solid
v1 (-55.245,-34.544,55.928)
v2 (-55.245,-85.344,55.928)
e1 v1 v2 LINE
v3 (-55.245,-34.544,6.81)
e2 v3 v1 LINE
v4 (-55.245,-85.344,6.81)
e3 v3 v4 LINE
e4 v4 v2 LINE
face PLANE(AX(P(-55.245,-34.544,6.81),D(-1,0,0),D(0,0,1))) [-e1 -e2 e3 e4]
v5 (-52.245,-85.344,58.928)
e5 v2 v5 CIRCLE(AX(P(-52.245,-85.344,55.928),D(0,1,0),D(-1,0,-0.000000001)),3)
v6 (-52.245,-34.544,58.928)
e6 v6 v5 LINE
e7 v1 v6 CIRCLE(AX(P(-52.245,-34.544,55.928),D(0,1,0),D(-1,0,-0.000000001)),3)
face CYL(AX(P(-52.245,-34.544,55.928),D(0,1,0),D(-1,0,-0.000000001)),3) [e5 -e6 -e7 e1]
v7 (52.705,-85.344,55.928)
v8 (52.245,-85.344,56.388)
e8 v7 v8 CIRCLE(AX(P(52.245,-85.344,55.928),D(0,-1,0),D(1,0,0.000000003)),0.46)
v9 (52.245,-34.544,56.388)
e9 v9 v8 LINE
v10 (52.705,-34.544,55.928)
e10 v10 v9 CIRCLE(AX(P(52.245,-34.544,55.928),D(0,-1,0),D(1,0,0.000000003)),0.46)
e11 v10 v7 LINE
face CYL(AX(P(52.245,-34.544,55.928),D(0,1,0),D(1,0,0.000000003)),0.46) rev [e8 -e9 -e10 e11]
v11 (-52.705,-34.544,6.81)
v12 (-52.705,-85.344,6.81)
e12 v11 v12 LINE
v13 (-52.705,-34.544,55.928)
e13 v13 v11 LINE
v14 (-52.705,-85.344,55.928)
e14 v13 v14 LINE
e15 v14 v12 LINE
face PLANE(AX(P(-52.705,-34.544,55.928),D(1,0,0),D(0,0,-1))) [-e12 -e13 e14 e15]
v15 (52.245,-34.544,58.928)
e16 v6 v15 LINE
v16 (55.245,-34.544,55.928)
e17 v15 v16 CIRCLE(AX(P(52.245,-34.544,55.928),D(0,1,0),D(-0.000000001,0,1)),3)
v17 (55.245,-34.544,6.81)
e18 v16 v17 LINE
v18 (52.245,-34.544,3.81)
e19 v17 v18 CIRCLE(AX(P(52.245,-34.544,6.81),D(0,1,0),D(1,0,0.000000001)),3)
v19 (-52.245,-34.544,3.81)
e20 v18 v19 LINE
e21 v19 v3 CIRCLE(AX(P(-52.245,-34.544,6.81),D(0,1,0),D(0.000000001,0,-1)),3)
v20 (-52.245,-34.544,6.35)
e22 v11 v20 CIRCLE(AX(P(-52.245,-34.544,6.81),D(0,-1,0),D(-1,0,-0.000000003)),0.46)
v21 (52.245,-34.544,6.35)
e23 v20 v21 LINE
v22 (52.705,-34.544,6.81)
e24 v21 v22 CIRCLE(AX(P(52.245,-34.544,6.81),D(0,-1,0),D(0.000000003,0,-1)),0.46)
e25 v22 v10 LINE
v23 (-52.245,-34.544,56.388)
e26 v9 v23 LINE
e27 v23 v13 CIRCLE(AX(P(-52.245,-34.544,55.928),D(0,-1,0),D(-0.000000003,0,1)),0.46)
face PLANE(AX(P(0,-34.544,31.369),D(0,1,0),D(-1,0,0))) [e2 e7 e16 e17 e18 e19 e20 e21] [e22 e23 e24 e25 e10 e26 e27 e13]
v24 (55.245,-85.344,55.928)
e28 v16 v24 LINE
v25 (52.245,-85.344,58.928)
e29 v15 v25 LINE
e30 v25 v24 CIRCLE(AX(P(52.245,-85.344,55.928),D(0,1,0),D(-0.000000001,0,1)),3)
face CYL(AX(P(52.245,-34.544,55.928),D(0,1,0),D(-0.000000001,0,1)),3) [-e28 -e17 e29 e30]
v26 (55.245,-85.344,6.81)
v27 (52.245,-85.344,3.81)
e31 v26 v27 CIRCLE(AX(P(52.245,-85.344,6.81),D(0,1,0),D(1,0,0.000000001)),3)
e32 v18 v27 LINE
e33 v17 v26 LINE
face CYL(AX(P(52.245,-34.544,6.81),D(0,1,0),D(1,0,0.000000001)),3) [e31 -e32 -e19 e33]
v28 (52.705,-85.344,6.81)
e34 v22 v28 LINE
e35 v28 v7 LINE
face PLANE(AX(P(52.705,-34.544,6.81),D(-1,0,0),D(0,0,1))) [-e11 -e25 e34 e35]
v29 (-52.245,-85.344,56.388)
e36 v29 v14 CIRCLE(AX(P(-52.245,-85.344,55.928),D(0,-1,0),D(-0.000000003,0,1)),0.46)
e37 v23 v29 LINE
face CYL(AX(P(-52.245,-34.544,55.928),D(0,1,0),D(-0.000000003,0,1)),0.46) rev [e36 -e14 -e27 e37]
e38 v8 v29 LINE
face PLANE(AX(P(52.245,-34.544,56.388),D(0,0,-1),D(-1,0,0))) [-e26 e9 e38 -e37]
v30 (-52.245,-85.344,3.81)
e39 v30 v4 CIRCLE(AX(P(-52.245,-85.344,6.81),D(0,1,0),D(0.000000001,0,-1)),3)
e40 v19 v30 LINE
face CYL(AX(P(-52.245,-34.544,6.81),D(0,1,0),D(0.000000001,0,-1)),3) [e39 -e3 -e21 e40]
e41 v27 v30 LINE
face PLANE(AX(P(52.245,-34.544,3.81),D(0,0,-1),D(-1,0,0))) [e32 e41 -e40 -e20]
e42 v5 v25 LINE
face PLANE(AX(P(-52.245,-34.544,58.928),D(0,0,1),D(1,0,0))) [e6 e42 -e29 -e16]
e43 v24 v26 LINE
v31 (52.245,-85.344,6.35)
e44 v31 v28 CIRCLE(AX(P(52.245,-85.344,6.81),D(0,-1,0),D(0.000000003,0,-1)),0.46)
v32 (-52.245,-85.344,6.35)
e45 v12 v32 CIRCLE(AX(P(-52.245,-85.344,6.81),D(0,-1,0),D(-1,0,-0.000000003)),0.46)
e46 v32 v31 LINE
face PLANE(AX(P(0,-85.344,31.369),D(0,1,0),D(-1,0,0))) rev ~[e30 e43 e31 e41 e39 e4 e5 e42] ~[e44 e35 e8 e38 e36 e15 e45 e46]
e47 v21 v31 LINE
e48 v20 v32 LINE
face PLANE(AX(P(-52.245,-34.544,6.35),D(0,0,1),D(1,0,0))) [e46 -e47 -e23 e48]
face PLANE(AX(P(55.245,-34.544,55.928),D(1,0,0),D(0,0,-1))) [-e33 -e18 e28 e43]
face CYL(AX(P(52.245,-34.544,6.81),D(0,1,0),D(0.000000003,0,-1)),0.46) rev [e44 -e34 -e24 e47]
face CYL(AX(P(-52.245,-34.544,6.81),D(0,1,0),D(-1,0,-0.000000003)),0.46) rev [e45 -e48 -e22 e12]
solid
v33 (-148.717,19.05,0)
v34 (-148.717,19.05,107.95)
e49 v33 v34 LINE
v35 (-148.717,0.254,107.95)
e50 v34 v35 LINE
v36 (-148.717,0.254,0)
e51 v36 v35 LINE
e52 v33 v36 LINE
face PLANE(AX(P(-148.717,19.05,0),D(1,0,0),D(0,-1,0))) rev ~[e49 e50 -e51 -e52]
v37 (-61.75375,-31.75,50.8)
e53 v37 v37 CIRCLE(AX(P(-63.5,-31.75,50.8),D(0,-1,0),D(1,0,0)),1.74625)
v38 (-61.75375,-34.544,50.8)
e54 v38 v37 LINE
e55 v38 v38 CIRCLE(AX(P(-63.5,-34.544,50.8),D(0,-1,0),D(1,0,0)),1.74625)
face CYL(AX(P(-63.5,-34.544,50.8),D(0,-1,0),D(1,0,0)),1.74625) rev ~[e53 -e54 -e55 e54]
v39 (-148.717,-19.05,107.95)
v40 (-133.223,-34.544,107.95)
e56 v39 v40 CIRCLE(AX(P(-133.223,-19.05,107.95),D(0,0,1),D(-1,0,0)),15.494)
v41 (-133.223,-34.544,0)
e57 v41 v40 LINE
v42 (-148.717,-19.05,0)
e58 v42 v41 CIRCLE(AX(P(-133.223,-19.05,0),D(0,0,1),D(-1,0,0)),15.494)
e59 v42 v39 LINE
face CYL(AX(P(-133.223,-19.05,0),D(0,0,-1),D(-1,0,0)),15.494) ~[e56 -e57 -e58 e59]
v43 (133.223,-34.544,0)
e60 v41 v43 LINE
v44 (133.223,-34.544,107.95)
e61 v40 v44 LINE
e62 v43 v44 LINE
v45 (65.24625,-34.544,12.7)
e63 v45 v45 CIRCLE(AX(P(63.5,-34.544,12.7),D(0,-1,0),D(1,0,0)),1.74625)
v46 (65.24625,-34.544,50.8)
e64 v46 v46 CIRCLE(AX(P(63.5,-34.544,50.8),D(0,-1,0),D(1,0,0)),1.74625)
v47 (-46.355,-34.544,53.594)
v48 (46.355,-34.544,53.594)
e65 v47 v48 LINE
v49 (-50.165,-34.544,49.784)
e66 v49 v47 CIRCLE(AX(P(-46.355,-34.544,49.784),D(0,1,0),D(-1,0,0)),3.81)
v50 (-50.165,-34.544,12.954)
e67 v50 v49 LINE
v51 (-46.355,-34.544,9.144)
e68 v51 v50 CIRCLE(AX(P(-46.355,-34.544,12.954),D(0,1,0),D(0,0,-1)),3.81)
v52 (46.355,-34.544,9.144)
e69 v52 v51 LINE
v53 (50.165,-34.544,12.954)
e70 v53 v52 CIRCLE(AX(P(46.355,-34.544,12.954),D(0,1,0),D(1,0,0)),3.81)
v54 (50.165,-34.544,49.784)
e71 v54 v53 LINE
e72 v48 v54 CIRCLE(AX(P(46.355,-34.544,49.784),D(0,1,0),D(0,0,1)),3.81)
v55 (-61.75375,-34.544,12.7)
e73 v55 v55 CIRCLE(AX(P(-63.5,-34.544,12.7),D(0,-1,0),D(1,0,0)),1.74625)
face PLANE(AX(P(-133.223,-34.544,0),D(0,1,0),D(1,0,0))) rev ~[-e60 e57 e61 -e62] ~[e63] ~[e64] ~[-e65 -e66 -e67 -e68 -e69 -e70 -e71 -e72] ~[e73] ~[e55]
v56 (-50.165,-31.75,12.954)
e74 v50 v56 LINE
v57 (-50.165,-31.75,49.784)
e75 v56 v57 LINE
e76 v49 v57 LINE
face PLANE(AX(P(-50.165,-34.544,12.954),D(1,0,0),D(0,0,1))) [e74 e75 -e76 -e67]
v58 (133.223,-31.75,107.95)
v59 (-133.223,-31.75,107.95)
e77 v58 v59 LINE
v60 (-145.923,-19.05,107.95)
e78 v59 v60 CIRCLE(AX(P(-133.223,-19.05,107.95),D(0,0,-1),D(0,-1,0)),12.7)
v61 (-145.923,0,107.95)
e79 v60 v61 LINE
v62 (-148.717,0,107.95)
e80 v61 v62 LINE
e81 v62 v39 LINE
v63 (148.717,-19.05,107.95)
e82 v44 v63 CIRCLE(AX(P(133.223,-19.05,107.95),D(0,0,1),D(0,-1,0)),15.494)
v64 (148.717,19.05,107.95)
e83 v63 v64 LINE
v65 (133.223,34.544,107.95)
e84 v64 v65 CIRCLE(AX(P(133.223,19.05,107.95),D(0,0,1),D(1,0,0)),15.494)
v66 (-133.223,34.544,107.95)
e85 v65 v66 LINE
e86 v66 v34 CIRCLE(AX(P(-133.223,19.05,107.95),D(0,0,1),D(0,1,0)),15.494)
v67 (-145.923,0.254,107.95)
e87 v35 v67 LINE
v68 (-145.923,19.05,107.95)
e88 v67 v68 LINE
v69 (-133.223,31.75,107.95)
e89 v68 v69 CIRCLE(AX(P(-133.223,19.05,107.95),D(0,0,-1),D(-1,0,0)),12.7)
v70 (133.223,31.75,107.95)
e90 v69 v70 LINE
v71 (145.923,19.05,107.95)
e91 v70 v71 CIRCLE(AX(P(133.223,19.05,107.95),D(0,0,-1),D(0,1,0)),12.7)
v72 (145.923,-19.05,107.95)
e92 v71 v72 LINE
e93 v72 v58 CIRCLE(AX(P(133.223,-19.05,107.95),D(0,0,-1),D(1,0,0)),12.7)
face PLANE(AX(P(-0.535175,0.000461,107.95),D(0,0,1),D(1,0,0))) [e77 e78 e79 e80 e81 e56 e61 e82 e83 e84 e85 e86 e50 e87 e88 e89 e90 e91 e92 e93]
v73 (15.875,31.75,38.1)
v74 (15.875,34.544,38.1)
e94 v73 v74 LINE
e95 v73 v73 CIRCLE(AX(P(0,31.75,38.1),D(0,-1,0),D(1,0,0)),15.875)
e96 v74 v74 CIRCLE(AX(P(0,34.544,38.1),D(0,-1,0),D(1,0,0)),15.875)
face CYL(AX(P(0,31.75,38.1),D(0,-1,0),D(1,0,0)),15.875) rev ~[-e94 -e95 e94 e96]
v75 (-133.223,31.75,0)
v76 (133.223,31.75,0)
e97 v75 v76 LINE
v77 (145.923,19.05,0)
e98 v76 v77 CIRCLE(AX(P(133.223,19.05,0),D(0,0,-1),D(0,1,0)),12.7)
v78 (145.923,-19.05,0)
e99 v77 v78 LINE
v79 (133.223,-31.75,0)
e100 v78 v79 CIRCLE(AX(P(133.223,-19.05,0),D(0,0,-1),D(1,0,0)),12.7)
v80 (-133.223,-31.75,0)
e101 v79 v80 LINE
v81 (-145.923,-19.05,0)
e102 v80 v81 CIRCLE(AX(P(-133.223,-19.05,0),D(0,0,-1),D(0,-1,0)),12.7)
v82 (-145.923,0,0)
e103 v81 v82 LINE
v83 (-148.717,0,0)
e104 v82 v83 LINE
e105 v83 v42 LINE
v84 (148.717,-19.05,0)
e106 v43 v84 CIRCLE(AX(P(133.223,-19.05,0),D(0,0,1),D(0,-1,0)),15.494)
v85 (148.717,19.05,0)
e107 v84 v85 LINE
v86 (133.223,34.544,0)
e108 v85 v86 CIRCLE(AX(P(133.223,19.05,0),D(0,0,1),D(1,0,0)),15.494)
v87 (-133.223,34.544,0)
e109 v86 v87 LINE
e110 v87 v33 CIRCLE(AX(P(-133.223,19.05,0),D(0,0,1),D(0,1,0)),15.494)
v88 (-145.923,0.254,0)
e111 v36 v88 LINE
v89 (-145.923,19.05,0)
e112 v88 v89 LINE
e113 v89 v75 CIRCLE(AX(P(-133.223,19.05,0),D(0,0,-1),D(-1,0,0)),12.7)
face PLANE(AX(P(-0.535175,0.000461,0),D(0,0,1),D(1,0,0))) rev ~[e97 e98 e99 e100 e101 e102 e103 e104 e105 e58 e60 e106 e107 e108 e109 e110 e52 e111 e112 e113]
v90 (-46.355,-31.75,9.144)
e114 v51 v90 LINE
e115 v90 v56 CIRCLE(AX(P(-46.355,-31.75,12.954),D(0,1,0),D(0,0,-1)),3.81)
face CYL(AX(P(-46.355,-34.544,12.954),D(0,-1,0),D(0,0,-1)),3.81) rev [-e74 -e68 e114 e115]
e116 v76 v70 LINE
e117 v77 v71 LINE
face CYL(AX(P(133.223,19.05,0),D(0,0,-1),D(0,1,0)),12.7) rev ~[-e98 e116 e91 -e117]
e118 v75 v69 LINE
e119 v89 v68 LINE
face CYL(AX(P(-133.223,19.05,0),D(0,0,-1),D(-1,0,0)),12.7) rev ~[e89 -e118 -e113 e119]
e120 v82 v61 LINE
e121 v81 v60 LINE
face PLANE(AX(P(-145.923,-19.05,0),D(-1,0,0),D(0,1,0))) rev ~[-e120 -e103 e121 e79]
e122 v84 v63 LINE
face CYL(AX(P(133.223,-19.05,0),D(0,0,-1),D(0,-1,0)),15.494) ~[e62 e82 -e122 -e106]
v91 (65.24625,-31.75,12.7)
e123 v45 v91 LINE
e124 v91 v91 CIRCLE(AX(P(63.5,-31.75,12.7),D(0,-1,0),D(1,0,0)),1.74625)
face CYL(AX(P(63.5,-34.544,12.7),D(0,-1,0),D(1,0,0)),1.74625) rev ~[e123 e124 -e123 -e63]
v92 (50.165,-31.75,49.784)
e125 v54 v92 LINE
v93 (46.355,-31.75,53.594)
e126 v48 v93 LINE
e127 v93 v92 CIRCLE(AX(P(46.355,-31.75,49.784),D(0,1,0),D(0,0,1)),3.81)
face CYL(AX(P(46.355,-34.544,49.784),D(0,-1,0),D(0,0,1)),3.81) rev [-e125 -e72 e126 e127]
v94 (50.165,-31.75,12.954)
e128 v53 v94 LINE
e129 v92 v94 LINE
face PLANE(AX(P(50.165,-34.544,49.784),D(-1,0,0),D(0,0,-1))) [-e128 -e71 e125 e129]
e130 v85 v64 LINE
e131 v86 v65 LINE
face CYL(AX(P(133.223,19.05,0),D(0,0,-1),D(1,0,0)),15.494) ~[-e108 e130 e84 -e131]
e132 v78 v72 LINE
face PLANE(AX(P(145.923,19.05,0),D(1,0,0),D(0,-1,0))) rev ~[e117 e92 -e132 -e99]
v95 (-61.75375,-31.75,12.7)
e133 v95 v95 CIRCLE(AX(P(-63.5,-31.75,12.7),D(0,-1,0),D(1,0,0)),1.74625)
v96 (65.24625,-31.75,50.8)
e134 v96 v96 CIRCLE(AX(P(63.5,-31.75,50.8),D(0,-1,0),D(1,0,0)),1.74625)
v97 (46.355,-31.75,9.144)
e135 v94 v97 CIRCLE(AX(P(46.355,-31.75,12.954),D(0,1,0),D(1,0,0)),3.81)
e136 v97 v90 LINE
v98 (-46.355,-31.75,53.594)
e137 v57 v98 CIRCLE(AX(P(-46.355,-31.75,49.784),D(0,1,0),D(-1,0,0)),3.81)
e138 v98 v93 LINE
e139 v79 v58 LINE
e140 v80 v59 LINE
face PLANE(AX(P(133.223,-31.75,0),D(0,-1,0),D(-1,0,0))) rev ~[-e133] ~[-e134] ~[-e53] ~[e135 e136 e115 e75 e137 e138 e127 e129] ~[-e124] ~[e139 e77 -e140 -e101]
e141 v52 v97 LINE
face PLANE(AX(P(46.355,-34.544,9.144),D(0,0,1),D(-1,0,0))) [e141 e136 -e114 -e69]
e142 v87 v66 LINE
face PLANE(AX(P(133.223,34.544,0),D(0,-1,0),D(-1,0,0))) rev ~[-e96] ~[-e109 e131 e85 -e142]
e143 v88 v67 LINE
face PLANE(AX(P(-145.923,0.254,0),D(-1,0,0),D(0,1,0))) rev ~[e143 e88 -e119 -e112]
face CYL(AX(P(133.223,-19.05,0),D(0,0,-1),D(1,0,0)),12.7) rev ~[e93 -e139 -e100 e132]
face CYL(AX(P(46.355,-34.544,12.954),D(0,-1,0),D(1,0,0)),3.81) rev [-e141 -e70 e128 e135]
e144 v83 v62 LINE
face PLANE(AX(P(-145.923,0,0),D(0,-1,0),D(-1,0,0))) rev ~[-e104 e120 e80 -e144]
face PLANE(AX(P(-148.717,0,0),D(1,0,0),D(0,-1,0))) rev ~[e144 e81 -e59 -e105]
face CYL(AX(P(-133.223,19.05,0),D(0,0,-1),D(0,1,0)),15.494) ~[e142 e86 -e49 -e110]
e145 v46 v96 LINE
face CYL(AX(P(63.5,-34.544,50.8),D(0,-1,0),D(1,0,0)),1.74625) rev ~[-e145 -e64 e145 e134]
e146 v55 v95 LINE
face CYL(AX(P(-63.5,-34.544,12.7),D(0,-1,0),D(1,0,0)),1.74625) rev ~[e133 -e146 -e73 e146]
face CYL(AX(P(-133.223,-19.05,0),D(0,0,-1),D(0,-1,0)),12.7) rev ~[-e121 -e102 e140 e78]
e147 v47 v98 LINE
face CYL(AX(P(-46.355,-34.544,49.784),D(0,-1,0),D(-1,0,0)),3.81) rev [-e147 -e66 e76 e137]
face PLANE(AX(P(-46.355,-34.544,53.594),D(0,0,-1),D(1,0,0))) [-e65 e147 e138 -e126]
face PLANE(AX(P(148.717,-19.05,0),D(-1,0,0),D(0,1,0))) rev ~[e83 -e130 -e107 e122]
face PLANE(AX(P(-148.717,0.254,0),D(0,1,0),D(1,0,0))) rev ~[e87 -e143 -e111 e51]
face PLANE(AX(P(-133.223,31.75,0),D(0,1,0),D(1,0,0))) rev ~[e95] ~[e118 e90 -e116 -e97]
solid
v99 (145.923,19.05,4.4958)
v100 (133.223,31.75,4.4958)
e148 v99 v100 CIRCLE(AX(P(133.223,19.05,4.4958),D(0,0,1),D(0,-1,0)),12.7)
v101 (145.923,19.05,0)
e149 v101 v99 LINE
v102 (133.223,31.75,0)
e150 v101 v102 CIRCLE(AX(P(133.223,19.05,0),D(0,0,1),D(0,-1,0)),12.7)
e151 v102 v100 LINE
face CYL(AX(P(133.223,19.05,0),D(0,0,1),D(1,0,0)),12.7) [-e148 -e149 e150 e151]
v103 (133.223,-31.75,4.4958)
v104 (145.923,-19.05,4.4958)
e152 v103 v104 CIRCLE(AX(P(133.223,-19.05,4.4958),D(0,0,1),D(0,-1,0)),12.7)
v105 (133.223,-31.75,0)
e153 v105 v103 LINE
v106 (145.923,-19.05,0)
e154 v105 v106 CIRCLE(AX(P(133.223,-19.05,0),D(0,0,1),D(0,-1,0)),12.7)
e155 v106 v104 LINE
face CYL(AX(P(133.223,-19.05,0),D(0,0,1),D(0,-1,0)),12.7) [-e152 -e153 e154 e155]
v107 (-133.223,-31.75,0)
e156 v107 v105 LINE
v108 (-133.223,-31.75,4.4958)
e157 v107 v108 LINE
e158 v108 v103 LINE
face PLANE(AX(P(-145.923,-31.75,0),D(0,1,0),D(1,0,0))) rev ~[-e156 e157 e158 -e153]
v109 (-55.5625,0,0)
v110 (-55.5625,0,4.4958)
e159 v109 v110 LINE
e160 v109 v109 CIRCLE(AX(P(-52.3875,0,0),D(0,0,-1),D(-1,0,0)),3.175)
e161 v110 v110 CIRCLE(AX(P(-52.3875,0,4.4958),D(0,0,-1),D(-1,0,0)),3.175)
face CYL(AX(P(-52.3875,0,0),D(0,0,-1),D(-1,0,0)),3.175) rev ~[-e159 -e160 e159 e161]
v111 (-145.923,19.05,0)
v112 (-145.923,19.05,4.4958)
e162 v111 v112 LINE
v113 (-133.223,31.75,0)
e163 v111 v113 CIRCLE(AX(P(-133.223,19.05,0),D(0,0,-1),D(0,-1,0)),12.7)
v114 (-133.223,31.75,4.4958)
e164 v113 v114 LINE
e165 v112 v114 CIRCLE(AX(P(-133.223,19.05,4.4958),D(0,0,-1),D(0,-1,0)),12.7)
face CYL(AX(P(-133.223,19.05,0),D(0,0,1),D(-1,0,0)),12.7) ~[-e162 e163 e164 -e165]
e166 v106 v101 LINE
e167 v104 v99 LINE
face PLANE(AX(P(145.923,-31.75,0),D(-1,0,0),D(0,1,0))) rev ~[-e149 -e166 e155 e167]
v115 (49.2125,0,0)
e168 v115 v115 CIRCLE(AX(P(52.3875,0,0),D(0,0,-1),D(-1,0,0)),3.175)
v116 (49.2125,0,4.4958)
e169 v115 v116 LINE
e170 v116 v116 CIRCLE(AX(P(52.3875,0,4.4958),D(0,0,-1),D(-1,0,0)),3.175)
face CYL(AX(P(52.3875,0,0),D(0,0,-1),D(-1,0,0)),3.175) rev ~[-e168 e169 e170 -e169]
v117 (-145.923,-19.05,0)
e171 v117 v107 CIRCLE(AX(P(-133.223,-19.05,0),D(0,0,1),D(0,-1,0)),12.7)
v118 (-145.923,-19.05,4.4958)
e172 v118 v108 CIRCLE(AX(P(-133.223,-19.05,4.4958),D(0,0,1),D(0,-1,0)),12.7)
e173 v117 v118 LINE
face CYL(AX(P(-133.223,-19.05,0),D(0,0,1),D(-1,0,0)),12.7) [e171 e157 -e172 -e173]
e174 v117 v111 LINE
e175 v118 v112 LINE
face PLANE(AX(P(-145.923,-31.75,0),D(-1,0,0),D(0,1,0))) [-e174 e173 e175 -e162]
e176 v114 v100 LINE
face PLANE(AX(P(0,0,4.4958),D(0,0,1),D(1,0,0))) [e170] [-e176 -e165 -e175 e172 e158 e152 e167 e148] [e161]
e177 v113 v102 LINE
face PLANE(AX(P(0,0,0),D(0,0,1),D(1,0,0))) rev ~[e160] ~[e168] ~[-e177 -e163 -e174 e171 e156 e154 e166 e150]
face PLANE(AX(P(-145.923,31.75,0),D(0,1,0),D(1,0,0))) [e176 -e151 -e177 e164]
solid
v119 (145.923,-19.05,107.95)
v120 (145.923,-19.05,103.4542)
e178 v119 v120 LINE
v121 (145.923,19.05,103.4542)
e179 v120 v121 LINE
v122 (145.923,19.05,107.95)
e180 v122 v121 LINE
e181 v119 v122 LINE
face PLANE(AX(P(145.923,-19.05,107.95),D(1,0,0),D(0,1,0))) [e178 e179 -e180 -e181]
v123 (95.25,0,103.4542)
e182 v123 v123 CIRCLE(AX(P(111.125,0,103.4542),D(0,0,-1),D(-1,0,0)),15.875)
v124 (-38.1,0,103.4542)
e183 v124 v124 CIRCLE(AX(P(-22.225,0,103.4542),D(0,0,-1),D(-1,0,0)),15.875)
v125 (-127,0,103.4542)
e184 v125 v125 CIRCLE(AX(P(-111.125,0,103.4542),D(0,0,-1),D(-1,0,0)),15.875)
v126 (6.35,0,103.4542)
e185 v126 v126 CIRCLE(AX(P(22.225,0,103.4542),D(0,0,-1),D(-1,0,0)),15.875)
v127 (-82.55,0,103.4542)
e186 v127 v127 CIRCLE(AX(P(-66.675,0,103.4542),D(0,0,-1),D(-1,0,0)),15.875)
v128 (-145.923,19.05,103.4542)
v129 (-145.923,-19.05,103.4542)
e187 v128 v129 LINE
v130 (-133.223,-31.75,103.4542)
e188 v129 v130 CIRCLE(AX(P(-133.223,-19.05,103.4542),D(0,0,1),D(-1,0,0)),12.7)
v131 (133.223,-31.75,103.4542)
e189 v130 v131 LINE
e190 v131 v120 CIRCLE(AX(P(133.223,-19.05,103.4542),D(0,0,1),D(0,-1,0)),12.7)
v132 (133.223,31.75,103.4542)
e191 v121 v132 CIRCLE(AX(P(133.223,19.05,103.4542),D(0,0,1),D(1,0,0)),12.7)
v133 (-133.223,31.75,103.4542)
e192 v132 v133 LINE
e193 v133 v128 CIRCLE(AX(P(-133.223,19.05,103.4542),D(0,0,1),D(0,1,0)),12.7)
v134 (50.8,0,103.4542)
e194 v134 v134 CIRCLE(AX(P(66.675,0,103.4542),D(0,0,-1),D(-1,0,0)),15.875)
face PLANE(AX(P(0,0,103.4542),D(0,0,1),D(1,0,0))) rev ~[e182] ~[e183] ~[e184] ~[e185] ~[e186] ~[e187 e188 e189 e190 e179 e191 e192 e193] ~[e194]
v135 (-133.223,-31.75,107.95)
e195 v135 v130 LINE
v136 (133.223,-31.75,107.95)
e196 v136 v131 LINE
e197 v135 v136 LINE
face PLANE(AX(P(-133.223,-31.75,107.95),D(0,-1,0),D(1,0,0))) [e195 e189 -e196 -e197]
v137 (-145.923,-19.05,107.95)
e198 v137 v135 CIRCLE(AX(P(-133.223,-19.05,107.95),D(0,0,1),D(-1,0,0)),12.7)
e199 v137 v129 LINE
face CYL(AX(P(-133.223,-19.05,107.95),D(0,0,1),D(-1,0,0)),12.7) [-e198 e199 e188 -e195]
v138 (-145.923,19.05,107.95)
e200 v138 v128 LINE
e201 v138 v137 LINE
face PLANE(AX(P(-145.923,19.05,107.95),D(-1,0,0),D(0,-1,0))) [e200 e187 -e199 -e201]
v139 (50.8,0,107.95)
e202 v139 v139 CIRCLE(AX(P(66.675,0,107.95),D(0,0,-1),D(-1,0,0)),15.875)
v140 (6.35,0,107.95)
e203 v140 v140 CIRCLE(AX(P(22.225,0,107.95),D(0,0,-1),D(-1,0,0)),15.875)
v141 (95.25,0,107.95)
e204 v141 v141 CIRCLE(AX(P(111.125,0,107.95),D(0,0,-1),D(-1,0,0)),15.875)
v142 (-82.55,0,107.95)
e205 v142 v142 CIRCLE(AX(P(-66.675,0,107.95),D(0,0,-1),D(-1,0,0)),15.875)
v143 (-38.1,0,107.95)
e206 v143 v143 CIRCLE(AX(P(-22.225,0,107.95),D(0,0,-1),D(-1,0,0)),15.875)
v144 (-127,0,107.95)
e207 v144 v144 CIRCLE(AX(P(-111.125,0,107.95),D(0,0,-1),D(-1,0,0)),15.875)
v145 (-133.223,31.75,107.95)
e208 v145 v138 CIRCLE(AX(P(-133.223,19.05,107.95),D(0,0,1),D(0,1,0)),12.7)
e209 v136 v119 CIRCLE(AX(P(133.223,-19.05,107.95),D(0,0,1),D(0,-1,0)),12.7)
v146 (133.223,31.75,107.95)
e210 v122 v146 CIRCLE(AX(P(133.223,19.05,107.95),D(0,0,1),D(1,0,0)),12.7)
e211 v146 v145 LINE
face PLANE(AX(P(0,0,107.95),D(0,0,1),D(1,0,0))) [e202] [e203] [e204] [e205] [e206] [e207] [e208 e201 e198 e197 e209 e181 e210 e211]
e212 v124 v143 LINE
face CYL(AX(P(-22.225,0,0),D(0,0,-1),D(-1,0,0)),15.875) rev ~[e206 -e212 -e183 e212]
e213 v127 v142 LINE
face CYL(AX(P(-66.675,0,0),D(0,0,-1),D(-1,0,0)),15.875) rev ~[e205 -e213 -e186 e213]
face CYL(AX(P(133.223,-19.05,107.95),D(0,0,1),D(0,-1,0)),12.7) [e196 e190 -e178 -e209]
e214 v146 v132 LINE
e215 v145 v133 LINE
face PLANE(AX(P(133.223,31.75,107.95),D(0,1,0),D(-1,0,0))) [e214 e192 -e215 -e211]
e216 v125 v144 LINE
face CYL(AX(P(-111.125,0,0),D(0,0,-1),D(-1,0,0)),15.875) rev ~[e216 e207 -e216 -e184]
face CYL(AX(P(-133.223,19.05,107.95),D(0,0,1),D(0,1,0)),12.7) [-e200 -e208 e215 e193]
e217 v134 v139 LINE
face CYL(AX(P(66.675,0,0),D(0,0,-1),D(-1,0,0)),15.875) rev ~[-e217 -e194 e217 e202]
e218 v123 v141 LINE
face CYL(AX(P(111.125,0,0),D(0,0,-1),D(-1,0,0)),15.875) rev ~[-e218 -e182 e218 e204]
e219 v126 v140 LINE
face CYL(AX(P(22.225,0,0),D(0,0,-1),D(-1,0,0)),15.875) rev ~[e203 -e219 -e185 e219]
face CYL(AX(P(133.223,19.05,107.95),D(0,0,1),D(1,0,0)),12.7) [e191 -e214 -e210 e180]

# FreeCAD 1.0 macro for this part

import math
import FreeCAD as App
import Part
import Sketcher

V = App.Vector
Q = App.Units.Quantity


def edges_at(feature, points):
    """Names of the edges that pass closest to the given points."""
    edges = feature.Shape.Edges
    near = lambda p: min(range(len(edges)), key=lambda i: edges[i].distToShape(Part.Vertex(*p))[0])
    return sorted({f"Edge{near(p) + 1}" for p in points})


def add_polygon(sketch, points):
    """Adds a closed chain of lines whose ends are joined by coincident constraints."""
    first, n = sketch.GeometryCount, len(points)
    for a, b in zip(points, points[1:] + points[:1]):
        sketch.addGeometry(Part.LineSegment(App.Vector(*a, 0), App.Vector(*b, 0)), False)
    for i in range(n):
        sketch.addConstraint(Sketcher.Constraint("Coincident", first + i, 2, first + (i + 1) % n, 1))

doc = App.newDocument("Part")
params = doc.addObject("Spreadsheet::Sheet", "Params")
for row, (alias, value) in enumerate([
    ("sketch1_height", "2.5 in"),
    ("sketch1_width", "11.49 in"),
    ("pad1_length", "0.177 in"),
    ("fillet_radius", "0.5 in"),
    ("sketch2_diameter", "0.25 in"),
    ("pocket1_length", "0.177 in"),
    ("sketch3_radius", "0.5 in"),
    ("sketch3_radius2", "0.61 in"),
    ("sketch3_height", "1.5 in"),
    ("sketch3_width", "10.49 in"),
    ("sketch3_height2", "0.74 in"),
    ("pad2_length", "4.25 in"),
    ("sketch4_radius", "0.15 in"),
    ("sketch4_width", "3.65 in"),
    ("sketch4_height", "1.45 in"),
    ("pocket2_length", "0.11 in"),
    ("sketch5_diameter", "1.25 in"),
    ("pocket4_length", "0.11 in"),
    ("sketch7_radius", "0.5 in"),
    ("sketch7_height", "1.5 in"),
    ("sketch7_width", "10.49 in"),
    ("pad3_length", "0.177 in"),
    ("sketch8_diameter", "1.25 in"),
    ("pad4_length", "2 in"),
], start=1):
    params.set(f"A{row}", alias)
    params.set(f"B{row}", "=" + value)
    params.setAlias(f"B{row}", alias)

body = doc.addObject("PartDesign::Body", "Body")

sketch1 = body.newObject("Sketcher::SketchObject", "Sketch")
sketch1.AttachmentSupport = (doc.getObject("XY_Plane"), [""])
sketch1.MapMode = "FlatFace"
add_polygon(sketch1, [(-145.923, 31.75), (-145.923, -31.75), (145.923, -31.75), (145.923, 31.75)])
sketch1.addConstraint(Sketcher.Constraint("Vertical", 0))
sketch1.addConstraint(Sketcher.Constraint("Horizontal", 1))
sketch1.addConstraint(Sketcher.Constraint("Vertical", 2))
sketch1.addConstraint(Sketcher.Constraint("Horizontal", 3))
sketch1.addConstraint(Sketcher.Constraint("Symmetric", 0, 2, 2, 2, -1, 1))
sketch1.addConstraint(Sketcher.Constraint("DistanceY", 0, 2, 0, 1, Q("2.5 in")))
sketch1.addConstraint(Sketcher.Constraint("DistanceX", 1, 1, 1, 2, Q("11.49 in")))
sketch1.setExpression("Constraints[9]", "Params.sketch1_height")
sketch1.setExpression("Constraints[10]", "Params.sketch1_width")
pad1 = body.newObject("PartDesign::Pad", "Pad")
pad1.Profile = sketch1
pad1.setExpression("Length", "Params.pad1_length")
doc.recompute()

fillet = body.newObject("PartDesign::Fillet", "Fillet")
fillet.Base = (pad1, edges_at(pad1, [
    (145.923, -31.75, 2.248),
    (-145.923, -31.75, 2.248),
    (-145.923, 31.75, 2.248),
    (145.923, 31.75, 2.248),
]))
fillet.setExpression("Radius", "Params.fillet_radius")

sketch2 = body.newObject("Sketcher::SketchObject", "Sketch001")
sketch2.AttachmentSupport = (doc.getObject("XY_Plane"), [""])
sketch2.MapMode = "FlatFace"
sketch2.addGeometry(Part.Circle(V(52.3875, 0, 0), V(0, 0, 1), 3.175), False)
sketch2.addGeometry(Part.Circle(V(-52.3875, 0, 0), V(0, 0, 1), 3.175), False)
sketch2.addConstraint(Sketcher.Constraint("Equal", 0, 1))
sketch2.addConstraint(Sketcher.Constraint("Symmetric", 0, 3, 1, 3, -1, 1))
sketch2.addConstraint(Sketcher.Constraint("PointOnObject", 0, 3, -1))
sketch2.addConstraint(Sketcher.Constraint("Diameter", 0, Q("0.25 in")))
sketch2.addConstraint(Sketcher.Constraint("DistanceX", -1, 1, 0, 3, Q("2.0625 in")))
sketch2.setExpression("Constraints[3]", "Params.sketch2_diameter")
pocket1 = body.newObject("PartDesign::Pocket", "Pocket")
pocket1.Profile = sketch2
pocket1.setExpression("Length", "Params.pocket1_length")
pocket1.Reversed = True
body2 = doc.addObject("PartDesign::Body", "Body001")

sketch3 = body2.newObject("Sketcher::SketchObject", "Sketch002")
sketch3.AttachmentSupport = (doc.getObject("XY_Plane001"), [""])
sketch3.MapMode = "FlatFace"
sketch3.addGeometry(Part.LineSegment(V(133.223, 34.544, 0), V(-133.223, 34.544, 0)), False)
sketch3.addGeometry(Part.ArcOfCircle(Part.Circle(V(-133.223, 19.05, 0), V(0, 0, 1), 15.494), math.radians(90), math.radians(180)), False)
sketch3.addGeometry(Part.LineSegment(V(-148.717, 19.05, 0), V(-148.717, 0.254, 0)), False)
sketch3.addGeometry(Part.LineSegment(V(-148.717, 0.254, 0), V(-145.923, 0.254, 0)), False)
sketch3.addGeometry(Part.LineSegment(V(-145.923, 0.254, 0), V(-145.923, 19.05, 0)), False)
sketch3.addGeometry(Part.ArcOfCircle(Part.Circle(V(-133.223, 19.05, 0), V(0, 0, 1), 12.7), math.radians(90), math.radians(180)), False)
sketch3.addGeometry(Part.LineSegment(V(-133.223, 31.75, 0), V(133.223, 31.75, 0)), False)
sketch3.addGeometry(Part.ArcOfCircle(Part.Circle(V(133.223, 19.05, 0), V(0, 0, 1), 12.7), math.radians(0), math.radians(90)), False)
sketch3.addGeometry(Part.LineSegment(V(145.923, 19.05, 0), V(145.923, -19.05, 0)), False)
sketch3.addGeometry(Part.ArcOfCircle(Part.Circle(V(133.223, -19.05, 0), V(0, 0, 1), 12.7), math.radians(-90), math.radians(0)), False)
sketch3.addGeometry(Part.LineSegment(V(133.223, -31.75, 0), V(-133.223, -31.75, 0)), False)
sketch3.addGeometry(Part.ArcOfCircle(Part.Circle(V(-133.223, -19.05, 0), V(0, 0, 1), 12.7), math.radians(180), math.radians(270)), False)
sketch3.addGeometry(Part.LineSegment(V(-145.923, -19.05, 0), V(-145.923, 0, 0)), False)
sketch3.addGeometry(Part.LineSegment(V(-145.923, 0, 0), V(-148.717, 0, 0)), False)
sketch3.addGeometry(Part.LineSegment(V(-148.717, 0, 0), V(-148.717, -19.05, 0)), False)
sketch3.addGeometry(Part.ArcOfCircle(Part.Circle(V(-133.223, -19.05, 0), V(0, 0, 1), 15.494), math.radians(180), math.radians(270)), False)
sketch3.addGeometry(Part.LineSegment(V(-133.223, -34.544, 0), V(133.223, -34.544, 0)), False)
sketch3.addGeometry(Part.ArcOfCircle(Part.Circle(V(133.223, -19.05, 0), V(0, 0, 1), 15.494), math.radians(-90), math.radians(0)), False)
sketch3.addGeometry(Part.LineSegment(V(148.717, -19.05, 0), V(148.717, 19.05, 0)), False)
sketch3.addGeometry(Part.ArcOfCircle(Part.Circle(V(133.223, 19.05, 0), V(0, 0, 1), 15.494), math.radians(0), math.radians(90)), False)
sketch3.addConstraint(Sketcher.Constraint("Tangent", 0, 2, 1, 1))
sketch3.addConstraint(Sketcher.Constraint("Tangent", 1, 2, 2, 1))
sketch3.addConstraint(Sketcher.Constraint("Coincident", 2, 2, 3, 1))
sketch3.addConstraint(Sketcher.Constraint("Coincident", 3, 2, 4, 1))
sketch3.addConstraint(Sketcher.Constraint("Tangent", 4, 2, 5, 2))
sketch3.addConstraint(Sketcher.Constraint("Tangent", 5, 1, 6, 1))
sketch3.addConstraint(Sketcher.Constraint("Tangent", 6, 2, 7, 2))
sketch3.addConstraint(Sketcher.Constraint("Tangent", 7, 1, 8, 1))
sketch3.addConstraint(Sketcher.Constraint("Tangent", 8, 2, 9, 2))
sketch3.addConstraint(Sketcher.Constraint("Tangent", 9, 1, 10, 1))
sketch3.addConstraint(Sketcher.Constraint("Tangent", 10, 2, 11, 2))
sketch3.addConstraint(Sketcher.Constraint("Tangent", 11, 1, 12, 1))
sketch3.addConstraint(Sketcher.Constraint("Coincident", 12, 2, 13, 1))
sketch3.addConstraint(Sketcher.Constraint("Coincident", 13, 2, 14, 1))
sketch3.addConstraint(Sketcher.Constraint("Tangent", 14, 2, 15, 1))
sketch3.addConstraint(Sketcher.Constraint("Tangent", 15, 2, 16, 1))
sketch3.addConstraint(Sketcher.Constraint("Tangent", 16, 2, 17, 1))
sketch3.addConstraint(Sketcher.Constraint("Tangent", 17, 2, 18, 1))
sketch3.addConstraint(Sketcher.Constraint("Tangent", 18, 2, 19, 1))
sketch3.addConstraint(Sketcher.Constraint("Tangent", 19, 2, 0, 1))
sketch3.addConstraint(Sketcher.Constraint("Horizontal", 0))
sketch3.addConstraint(Sketcher.Constraint("Vertical", 2))
sketch3.addConstraint(Sketcher.Constraint("Horizontal", 3))
sketch3.addConstraint(Sketcher.Constraint("Vertical", 4))
sketch3.addConstraint(Sketcher.Constraint("Horizontal", 6))
sketch3.addConstraint(Sketcher.Constraint("Vertical", 8))
sketch3.addConstraint(Sketcher.Constraint("Horizontal", 10))
sketch3.addConstraint(Sketcher.Constraint("Vertical", 12))
sketch3.addConstraint(Sketcher.Constraint("Horizontal", 13))
sketch3.addConstraint(Sketcher.Constraint("Vertical", 14))
sketch3.addConstraint(Sketcher.Constraint("Horizontal", 16))
sketch3.addConstraint(Sketcher.Constraint("Vertical", 18))
sketch3.addConstraint(Sketcher.Constraint("Coincident", 5, 3, 1, 3))
sketch3.addConstraint(Sketcher.Constraint("Coincident", 15, 3, 11, 3))
sketch3.addConstraint(Sketcher.Constraint("Coincident", 17, 3, 9, 3))
sketch3.addConstraint(Sketcher.Constraint("Coincident", 19, 3, 7, 3))
sketch3.addConstraint(Sketcher.Constraint("Equal", 5, 7))
sketch3.addConstraint(Sketcher.Constraint("Equal", 7, 9))
sketch3.addConstraint(Sketcher.Constraint("Equal", 9, 11))
sketch3.addConstraint(Sketcher.Constraint("Symmetric", 1, 3, 9, 3, -1, 1))
sketch3.addConstraint(Sketcher.Constraint("PointOnObject", 12, 2, -1))
sketch3.addConstraint(Sketcher.Constraint("Vertical", 5, 3, 11, 3))
sketch3.addConstraint(Sketcher.Constraint("Radius", 5, Q("0.5 in")))
sketch3.addConstraint(Sketcher.Constraint("Radius", 1, Q("0.61 in")))
sketch3.addConstraint(Sketcher.Constraint("DistanceY", 8, 2, 8, 1, Q("1.5 in")))
sketch3.addConstraint(Sketcher.Constraint("DistanceX", 0, 2, 0, 1, Q("10.49 in")))
sketch3.addConstraint(Sketcher.Constraint("DistanceY", 2, 2, 2, 1, Q("0.74 in")))
sketch3.setExpression("Constraints[42]", "Params.sketch3_radius")
sketch3.setExpression("Constraints[43]", "Params.sketch3_radius2")
sketch3.setExpression("Constraints[44]", "Params.sketch3_height")
sketch3.setExpression("Constraints[45]", "Params.sketch3_width")
sketch3.setExpression("Constraints[46]", "Params.sketch3_height2")
pad2 = body2.newObject("PartDesign::Pad", "Pad001")
pad2.Profile = sketch3
pad2.setExpression("Length", "Params.pad2_length")

sketch4 = body2.newObject("Sketcher::SketchObject", "Sketch003")
sketch4.AttachmentSupport = (doc.getObject("XZ_Plane001"), [""])
sketch4.MapMode = "FlatFace"
sketch4.AttachmentOffset = App.Placement(V(0, 0, 1.36 * 25.4), App.Rotation())
sketch4.addGeometry(Part.LineSegment(V(46.355, 53.594, 0), V(-46.355, 53.594, 0)), False)
sketch4.addGeometry(Part.ArcOfCircle(Part.Circle(V(-46.355, 49.784, 0), V(0, 0, 1), 3.81), math.radians(90), math.radians(180)), False)
sketch4.addGeometry(Part.LineSegment(V(-50.165, 49.784, 0), V(-50.165, 12.954, 0)), False)
sketch4.addGeometry(Part.ArcOfCircle(Part.Circle(V(-46.355, 12.954, 0), V(0, 0, 1), 3.81), math.radians(-180), math.radians(-90)), False)
sketch4.addGeometry(Part.LineSegment(V(-46.355, 9.144, 0), V(46.355, 9.144, 0)), False)
sketch4.addGeometry(Part.ArcOfCircle(Part.Circle(V(46.355, 12.954, 0), V(0, 0, 1), 3.81), math.radians(-90), math.radians(0)), False)
sketch4.addGeometry(Part.LineSegment(V(50.165, 12.954, 0), V(50.165, 49.784, 0)), False)
sketch4.addGeometry(Part.ArcOfCircle(Part.Circle(V(46.355, 49.784, 0), V(0, 0, 1), 3.81), math.radians(0), math.radians(90)), False)
sketch4.addConstraint(Sketcher.Constraint("Tangent", 0, 2, 1, 1))
sketch4.addConstraint(Sketcher.Constraint("Tangent", 1, 2, 2, 1))
sketch4.addConstraint(Sketcher.Constraint("Tangent", 2, 2, 3, 1))
sketch4.addConstraint(Sketcher.Constraint("Tangent", 3, 2, 4, 1))
sketch4.addConstraint(Sketcher.Constraint("Tangent", 4, 2, 5, 1))
sketch4.addConstraint(Sketcher.Constraint("Tangent", 5, 2, 6, 1))
sketch4.addConstraint(Sketcher.Constraint("Tangent", 6, 2, 7, 1))
sketch4.addConstraint(Sketcher.Constraint("Tangent", 7, 2, 0, 1))
sketch4.addConstraint(Sketcher.Constraint("Horizontal", 0))
sketch4.addConstraint(Sketcher.Constraint("Vertical", 2))
sketch4.addConstraint(Sketcher.Constraint("Horizontal", 4))
sketch4.addConstraint(Sketcher.Constraint("Vertical", 6))
sketch4.addConstraint(Sketcher.Constraint("Equal", 1, 3))
sketch4.addConstraint(Sketcher.Constraint("Equal", 3, 5))
sketch4.addConstraint(Sketcher.Constraint("Equal", 5, 7))
sketch4.addConstraint(Sketcher.Constraint("Radius", 1, Q("0.15 in")))
sketch4.addConstraint(Sketcher.Constraint("DistanceX", 0, 2, 0, 1, Q("3.65 in")))
sketch4.addConstraint(Sketcher.Constraint("DistanceY", 2, 2, 2, 1, Q("1.45 in")))
sketch4.addConstraint(Sketcher.Constraint("DistanceY", -1, 1, 1, 3, Q("1.96 in")))
sketch4.addConstraint(Sketcher.Constraint("DistanceX", 1, 3, -1, 1, Q("1.825 in")))
sketch4.setExpression("Constraints[15]", "Params.sketch4_radius")
sketch4.setExpression("Constraints[16]", "Params.sketch4_width")
sketch4.setExpression("Constraints[17]", "Params.sketch4_height")
pocket2 = body2.newObject("PartDesign::Pocket", "Pocket001")
pocket2.Profile = sketch4
pocket2.setExpression("Length", "Params.pocket2_length")

sketch5 = body2.newObject("Sketcher::SketchObject", "Sketch004")
sketch5.AttachmentSupport = (doc.getObject("XZ_Plane001"), [""])
sketch5.MapMode = "FlatFace"
sketch5.AttachmentOffset = App.Placement(V(0, 0, -1.25 * 25.4), App.Rotation())
sketch5.addGeometry(Part.Circle(V(0, 38.1, 0), V(0, 0, 1), 15.875), False)
sketch5.addConstraint(Sketcher.Constraint("PointOnObject", 0, 3, -2))
sketch5.addConstraint(Sketcher.Constraint("Diameter", 0, Q("1.25 in")))
sketch5.addConstraint(Sketcher.Constraint("DistanceY", -1, 1, 0, 3, Q("1.5 in")))
sketch5.setExpression("Constraints[1]", "Params.sketch5_diameter")
pocket3 = body2.newObject("PartDesign::Pocket", "Pocket002")
pocket3.Profile = sketch5
pocket3.Type = "ThroughAll"

sketch6 = body2.newObject("Sketcher::SketchObject", "Sketch005")
sketch6.AttachmentSupport = (doc.getObject("XZ_Plane001"), [""])
sketch6.MapMode = "FlatFace"
sketch6.AttachmentOffset = App.Placement(V(0, 0, 1.36 * 25.4), App.Rotation())
sketch6.addGeometry(Part.Circle(V(63.5, 50.8, 0), V(0, 0, 1), 1.74625), False)
sketch6.addGeometry(Part.Circle(V(63.5, 12.7, 0), V(0, 0, 1), 1.74625), False)
sketch6.addGeometry(Part.Circle(V(-63.5, 50.8, 0), V(0, 0, 1), 1.74625), False)
sketch6.addGeometry(Part.Circle(V(-63.5, 12.7, 0), V(0, 0, 1), 1.74625), False)
sketch6.addConstraint(Sketcher.Constraint("Equal", 0, 1))
sketch6.addConstraint(Sketcher.Constraint("Equal", 1, 2))
sketch6.addConstraint(Sketcher.Constraint("Equal", 2, 3))
sketch6.addConstraint(Sketcher.Constraint("Symmetric", 0, 3, 2, 3, -2))
sketch6.addConstraint(Sketcher.Constraint("Symmetric", 1, 3, 3, 3, -2))
sketch6.addConstraint(Sketcher.Constraint("Vertical", 0, 3, 1, 3))
sketch6.addConstraint(Sketcher.Constraint("DistanceY", -1, 1, 0, 3, Q("2 in")))
sketch6.addConstraint(Sketcher.Constraint("DistanceX", 2, 3, 0, 3, Q("5 in")))
sketch6.addConstraint(Sketcher.Constraint("Diameter", 0, Q("0.1375 in")))
sketch6.addConstraint(Sketcher.Constraint("DistanceY", -1, 1, 1, 3, Q("0.5 in")))
pocket4 = body2.newObject("PartDesign::Pocket", "Pocket003")
pocket4.Profile = sketch6
pocket4.setExpression("Length", "Params.pocket4_length")
body3 = doc.addObject("PartDesign::Body", "Body002")

sketch7 = body3.newObject("Sketcher::SketchObject", "Sketch006")
sketch7.AttachmentSupport = (doc.getObject("XY_Plane002"), [""])
sketch7.MapMode = "FlatFace"
sketch7.AttachmentOffset = App.Placement(V(0, 0, 4.25 * 25.4), App.Rotation())
sketch7.addGeometry(Part.LineSegment(V(-145.923, 19.05, 0), V(-145.923, -19.05, 0)), False)
sketch7.addGeometry(Part.ArcOfCircle(Part.Circle(V(-133.223, -19.05, 0), V(0, 0, 1), 12.7), math.radians(180), math.radians(270)), False)
sketch7.addGeometry(Part.LineSegment(V(-133.223, -31.75, 0), V(133.223, -31.75, 0)), False)
sketch7.addGeometry(Part.ArcOfCircle(Part.Circle(V(133.223, -19.05, 0), V(0, 0, 1), 12.7), math.radians(-90), math.radians(0)), False)
sketch7.addGeometry(Part.LineSegment(V(145.923, -19.05, 0), V(145.923, 19.05, 0)), False)
sketch7.addGeometry(Part.ArcOfCircle(Part.Circle(V(133.223, 19.05, 0), V(0, 0, 1), 12.7), math.radians(0), math.radians(90)), False)
sketch7.addGeometry(Part.LineSegment(V(133.223, 31.75, 0), V(-133.223, 31.75, 0)), False)
sketch7.addGeometry(Part.ArcOfCircle(Part.Circle(V(-133.223, 19.05, 0), V(0, 0, 1), 12.7), math.radians(90), math.radians(180)), False)
sketch7.addConstraint(Sketcher.Constraint("Tangent", 0, 2, 1, 1))
sketch7.addConstraint(Sketcher.Constraint("Tangent", 1, 2, 2, 1))
sketch7.addConstraint(Sketcher.Constraint("Tangent", 2, 2, 3, 1))
sketch7.addConstraint(Sketcher.Constraint("Tangent", 3, 2, 4, 1))
sketch7.addConstraint(Sketcher.Constraint("Tangent", 4, 2, 5, 1))
sketch7.addConstraint(Sketcher.Constraint("Tangent", 5, 2, 6, 1))
sketch7.addConstraint(Sketcher.Constraint("Tangent", 6, 2, 7, 1))
sketch7.addConstraint(Sketcher.Constraint("Tangent", 7, 2, 0, 1))
sketch7.addConstraint(Sketcher.Constraint("Vertical", 0))
sketch7.addConstraint(Sketcher.Constraint("Horizontal", 2))
sketch7.addConstraint(Sketcher.Constraint("Vertical", 4))
sketch7.addConstraint(Sketcher.Constraint("Horizontal", 6))
sketch7.addConstraint(Sketcher.Constraint("Equal", 1, 3))
sketch7.addConstraint(Sketcher.Constraint("Equal", 3, 5))
sketch7.addConstraint(Sketcher.Constraint("Equal", 5, 7))
sketch7.addConstraint(Sketcher.Constraint("Symmetric", 1, 3, 5, 3, -1, 1))
sketch7.addConstraint(Sketcher.Constraint("Radius", 1, Q("0.5 in")))
sketch7.addConstraint(Sketcher.Constraint("DistanceY", 0, 2, 0, 1, Q("1.5 in")))
sketch7.addConstraint(Sketcher.Constraint("DistanceX", 2, 1, 2, 2, Q("10.49 in")))
sketch7.setExpression("Constraints[16]", "Params.sketch7_radius")
sketch7.setExpression("Constraints[17]", "Params.sketch7_height")
sketch7.setExpression("Constraints[18]", "Params.sketch7_width")
pad3 = body3.newObject("PartDesign::Pad", "Pad002")
pad3.Profile = sketch7
pad3.setExpression("Length", "Params.pad3_length")
pad3.Reversed = True

sketch8 = body3.newObject("Sketcher::SketchObject", "Sketch007")
sketch8.AttachmentSupport = (doc.getObject("XY_Plane002"), [""])
sketch8.MapMode = "FlatFace"
sketch8.addGeometry(Part.Circle(V(111.125, 0, 0), V(0, 0, 1), 15.875), False)
sketch8.addGeometry(Part.Circle(V(66.675, 0, 0), V(0, 0, 1), 15.875), False)
sketch8.addGeometry(Part.Circle(V(22.225, 0, 0), V(0, 0, 1), 15.875), False)
sketch8.addGeometry(Part.Circle(V(-22.225, 0, 0), V(0, 0, 1), 15.875), False)
sketch8.addGeometry(Part.Circle(V(-66.675, 0, 0), V(0, 0, 1), 15.875), False)
sketch8.addGeometry(Part.Circle(V(-111.125, 0, 0), V(0, 0, 1), 15.875), False)
sketch8.addConstraint(Sketcher.Constraint("Equal", 0, 1))
sketch8.addConstraint(Sketcher.Constraint("Equal", 1, 2))
sketch8.addConstraint(Sketcher.Constraint("Equal", 2, 3))
sketch8.addConstraint(Sketcher.Constraint("Equal", 3, 4))
sketch8.addConstraint(Sketcher.Constraint("Equal", 4, 5))
sketch8.addConstraint(Sketcher.Constraint("Symmetric", 2, 3, 3, 3, -1, 1))
sketch8.addConstraint(Sketcher.Constraint("Symmetric", 1, 3, 4, 3, -1, 1))
sketch8.addConstraint(Sketcher.Constraint("Symmetric", 0, 3, 5, 3, -1, 1))
sketch8.addConstraint(Sketcher.Constraint("PointOnObject", 0, 3, -1))
sketch8.addConstraint(Sketcher.Constraint("PointOnObject", 1, 3, -1))
sketch8.addConstraint(Sketcher.Constraint("PointOnObject", 2, 3, -1))
sketch8.addConstraint(Sketcher.Constraint("Diameter", 0, Q("1.25 in")))
sketch8.addConstraint(Sketcher.Constraint("DistanceX", 4, 3, 0, 3, Q("7 in")))
sketch8.addConstraint(Sketcher.Constraint("DistanceX", 2, 3, 0, 3, Q("3.5 in")))
sketch8.addConstraint(Sketcher.Constraint("DistanceX", 1, 3, 0, 3, Q("1.75 in")))
sketch8.setExpression("Constraints[11]", "Params.sketch8_diameter")
pocket5 = body3.newObject("PartDesign::Pocket", "Pocket004")
pocket5.Profile = sketch8
pocket5.Type = "ThroughAll"
pocket5.Reversed = True
body4 = doc.addObject("PartDesign::Body", "Body003")

sketch9 = body4.newObject("Sketcher::SketchObject", "Sketch008")
sketch9.AttachmentSupport = (doc.getObject("XZ_Plane003"), [""])
sketch9.MapMode = "FlatFace"
sketch9.AttachmentOffset = App.Placement(V(0, 0, 1.36 * 25.4), App.Rotation())
sketch9.addGeometry(Part.LineSegment(V(52.245, 58.928, 0), V(-52.245, 58.928, 0)), False)
sketch9.addGeometry(Part.ArcOfCircle(Part.Circle(V(-52.245, 55.928, 0), V(0, 0, 1), 3), math.radians(90), math.radians(180)), False)
sketch9.addGeometry(Part.LineSegment(V(-55.245, 55.928, 0), V(-55.245, 6.81, 0)), False)
sketch9.addGeometry(Part.ArcOfCircle(Part.Circle(V(-52.245, 6.81, 0), V(0, 0, 1), 3), math.radians(180), math.radians(270)), False)
sketch9.addGeometry(Part.LineSegment(V(-52.245, 3.81, 0), V(52.245, 3.81, 0)), False)
sketch9.addGeometry(Part.ArcOfCircle(Part.Circle(V(52.245, 6.81, 0), V(0, 0, 1), 3), math.radians(-90), math.radians(0)), False)
sketch9.addGeometry(Part.LineSegment(V(55.245, 6.81, 0), V(55.245, 55.928, 0)), False)
sketch9.addGeometry(Part.ArcOfCircle(Part.Circle(V(52.245, 55.928, 0), V(0, 0, 1), 3), math.radians(0), math.radians(90)), False)
sketch9.addGeometry(Part.ArcOfCircle(Part.Circle(V(-52.245, 55.928, 0), V(0, 0, 1), 0.46), math.radians(90), math.radians(180)), False)
sketch9.addGeometry(Part.LineSegment(V(-52.245, 56.388, 0), V(52.245, 56.388, 0)), False)
sketch9.addGeometry(Part.ArcOfCircle(Part.Circle(V(52.245, 55.928, 0), V(0, 0, 1), 0.46), math.radians(0), math.radians(90)), False)
sketch9.addGeometry(Part.LineSegment(V(52.705, 55.928, 0), V(52.705, 6.81, 0)), False)
sketch9.addGeometry(Part.ArcOfCircle(Part.Circle(V(52.245, 6.81, 0), V(0, 0, 1), 0.46), math.radians(-90), math.radians(0)), False)
sketch9.addGeometry(Part.LineSegment(V(52.245, 6.35, 0), V(-52.245, 6.35, 0)), False)
sketch9.addGeometry(Part.ArcOfCircle(Part.Circle(V(-52.245, 6.81, 0), V(0, 0, 1), 0.46), math.radians(-180), math.radians(-90)), False)
sketch9.addGeometry(Part.LineSegment(V(-52.705, 6.81, 0), V(-52.705, 55.928, 0)), False)
sketch9.addConstraint(Sketcher.Constraint("Tangent", 0, 2, 1, 1))
sketch9.addConstraint(Sketcher.Constraint("Tangent", 1, 2, 2, 1))
sketch9.addConstraint(Sketcher.Constraint("Tangent", 2, 2, 3, 1))
sketch9.addConstraint(Sketcher.Constraint("Tangent", 3, 2, 4, 1))
sketch9.addConstraint(Sketcher.Constraint("Tangent", 4, 2, 5, 1))
sketch9.addConstraint(Sketcher.Constraint("Tangent", 5, 2, 6, 1))
sketch9.addConstraint(Sketcher.Constraint("Tangent", 6, 2, 7, 1))
sketch9.addConstraint(Sketcher.Constraint("Tangent", 7, 2, 0, 1))
sketch9.addConstraint(Sketcher.Constraint("Tangent", 8, 1, 9, 1))
sketch9.addConstraint(Sketcher.Constraint("Tangent", 9, 2, 10, 2))
sketch9.addConstraint(Sketcher.Constraint("Tangent", 10, 1, 11, 1))
sketch9.addConstraint(Sketcher.Constraint("Tangent", 11, 2, 12, 2))
sketch9.addConstraint(Sketcher.Constraint("Tangent", 12, 1, 13, 1))
sketch9.addConstraint(Sketcher.Constraint("Tangent", 13, 2, 14, 2))
sketch9.addConstraint(Sketcher.Constraint("Tangent", 14, 1, 15, 1))
sketch9.addConstraint(Sketcher.Constraint("Tangent", 15, 2, 8, 2))
sketch9.addConstraint(Sketcher.Constraint("Horizontal", 0))
sketch9.addConstraint(Sketcher.Constraint("Vertical", 2))
sketch9.addConstraint(Sketcher.Constraint("Horizontal", 4))
sketch9.addConstraint(Sketcher.Constraint("Vertical", 6))
sketch9.addConstraint(Sketcher.Constraint("Horizontal", 9))
sketch9.addConstraint(Sketcher.Constraint("Vertical", 11))
sketch9.addConstraint(Sketcher.Constraint("Horizontal", 13))
sketch9.addConstraint(Sketcher.Constraint("Vertical", 15))
sketch9.addConstraint(Sketcher.Constraint("Coincident", 8, 3, 1, 3))
sketch9.addConstraint(Sketcher.Constraint("Coincident", 10, 3, 7, 3))
sketch9.addConstraint(Sketcher.Constraint("Coincident", 12, 3, 5, 3))
sketch9.addConstraint(Sketcher.Constraint("Equal", 1, 3))
sketch9.addConstraint(Sketcher.Constraint("Equal", 3, 5))
sketch9.addConstraint(Sketcher.Constraint("Equal", 5, 7))
sketch9.addConstraint(Sketcher.Constraint("Equal", 12, 14))
sketch9.addConstraint(Sketcher.Constraint("DistanceY", 8, 1, 0, 2, Q("0.1 in")))
sketch9.addConstraint(Sketcher.Constraint("DistanceY", -1, 1, 0, 2, Q("2.32 in")))
sketch9.addConstraint(Sketcher.Constraint("DistanceY", -1, 1, 3, 2, Q("0.15 in")))
sketch9.addConstraint(Sketcher.Constraint("Radius", 1, Q("3 mm")))
sketch9.addConstraint(Sketcher.Constraint("DistanceX", 1, 2, -1, 1, Q("2.175 in")))
sketch9.addConstraint(Sketcher.Constraint("DistanceX", -1, 1, 5, 2, Q("2.175 in")))
pad4 = body4.newObject("PartDesign::Pad", "Pad003")
pad4.Profile = sketch9
pad4.setExpression("Length", "Params.pad4_length")

doc.recompute()
